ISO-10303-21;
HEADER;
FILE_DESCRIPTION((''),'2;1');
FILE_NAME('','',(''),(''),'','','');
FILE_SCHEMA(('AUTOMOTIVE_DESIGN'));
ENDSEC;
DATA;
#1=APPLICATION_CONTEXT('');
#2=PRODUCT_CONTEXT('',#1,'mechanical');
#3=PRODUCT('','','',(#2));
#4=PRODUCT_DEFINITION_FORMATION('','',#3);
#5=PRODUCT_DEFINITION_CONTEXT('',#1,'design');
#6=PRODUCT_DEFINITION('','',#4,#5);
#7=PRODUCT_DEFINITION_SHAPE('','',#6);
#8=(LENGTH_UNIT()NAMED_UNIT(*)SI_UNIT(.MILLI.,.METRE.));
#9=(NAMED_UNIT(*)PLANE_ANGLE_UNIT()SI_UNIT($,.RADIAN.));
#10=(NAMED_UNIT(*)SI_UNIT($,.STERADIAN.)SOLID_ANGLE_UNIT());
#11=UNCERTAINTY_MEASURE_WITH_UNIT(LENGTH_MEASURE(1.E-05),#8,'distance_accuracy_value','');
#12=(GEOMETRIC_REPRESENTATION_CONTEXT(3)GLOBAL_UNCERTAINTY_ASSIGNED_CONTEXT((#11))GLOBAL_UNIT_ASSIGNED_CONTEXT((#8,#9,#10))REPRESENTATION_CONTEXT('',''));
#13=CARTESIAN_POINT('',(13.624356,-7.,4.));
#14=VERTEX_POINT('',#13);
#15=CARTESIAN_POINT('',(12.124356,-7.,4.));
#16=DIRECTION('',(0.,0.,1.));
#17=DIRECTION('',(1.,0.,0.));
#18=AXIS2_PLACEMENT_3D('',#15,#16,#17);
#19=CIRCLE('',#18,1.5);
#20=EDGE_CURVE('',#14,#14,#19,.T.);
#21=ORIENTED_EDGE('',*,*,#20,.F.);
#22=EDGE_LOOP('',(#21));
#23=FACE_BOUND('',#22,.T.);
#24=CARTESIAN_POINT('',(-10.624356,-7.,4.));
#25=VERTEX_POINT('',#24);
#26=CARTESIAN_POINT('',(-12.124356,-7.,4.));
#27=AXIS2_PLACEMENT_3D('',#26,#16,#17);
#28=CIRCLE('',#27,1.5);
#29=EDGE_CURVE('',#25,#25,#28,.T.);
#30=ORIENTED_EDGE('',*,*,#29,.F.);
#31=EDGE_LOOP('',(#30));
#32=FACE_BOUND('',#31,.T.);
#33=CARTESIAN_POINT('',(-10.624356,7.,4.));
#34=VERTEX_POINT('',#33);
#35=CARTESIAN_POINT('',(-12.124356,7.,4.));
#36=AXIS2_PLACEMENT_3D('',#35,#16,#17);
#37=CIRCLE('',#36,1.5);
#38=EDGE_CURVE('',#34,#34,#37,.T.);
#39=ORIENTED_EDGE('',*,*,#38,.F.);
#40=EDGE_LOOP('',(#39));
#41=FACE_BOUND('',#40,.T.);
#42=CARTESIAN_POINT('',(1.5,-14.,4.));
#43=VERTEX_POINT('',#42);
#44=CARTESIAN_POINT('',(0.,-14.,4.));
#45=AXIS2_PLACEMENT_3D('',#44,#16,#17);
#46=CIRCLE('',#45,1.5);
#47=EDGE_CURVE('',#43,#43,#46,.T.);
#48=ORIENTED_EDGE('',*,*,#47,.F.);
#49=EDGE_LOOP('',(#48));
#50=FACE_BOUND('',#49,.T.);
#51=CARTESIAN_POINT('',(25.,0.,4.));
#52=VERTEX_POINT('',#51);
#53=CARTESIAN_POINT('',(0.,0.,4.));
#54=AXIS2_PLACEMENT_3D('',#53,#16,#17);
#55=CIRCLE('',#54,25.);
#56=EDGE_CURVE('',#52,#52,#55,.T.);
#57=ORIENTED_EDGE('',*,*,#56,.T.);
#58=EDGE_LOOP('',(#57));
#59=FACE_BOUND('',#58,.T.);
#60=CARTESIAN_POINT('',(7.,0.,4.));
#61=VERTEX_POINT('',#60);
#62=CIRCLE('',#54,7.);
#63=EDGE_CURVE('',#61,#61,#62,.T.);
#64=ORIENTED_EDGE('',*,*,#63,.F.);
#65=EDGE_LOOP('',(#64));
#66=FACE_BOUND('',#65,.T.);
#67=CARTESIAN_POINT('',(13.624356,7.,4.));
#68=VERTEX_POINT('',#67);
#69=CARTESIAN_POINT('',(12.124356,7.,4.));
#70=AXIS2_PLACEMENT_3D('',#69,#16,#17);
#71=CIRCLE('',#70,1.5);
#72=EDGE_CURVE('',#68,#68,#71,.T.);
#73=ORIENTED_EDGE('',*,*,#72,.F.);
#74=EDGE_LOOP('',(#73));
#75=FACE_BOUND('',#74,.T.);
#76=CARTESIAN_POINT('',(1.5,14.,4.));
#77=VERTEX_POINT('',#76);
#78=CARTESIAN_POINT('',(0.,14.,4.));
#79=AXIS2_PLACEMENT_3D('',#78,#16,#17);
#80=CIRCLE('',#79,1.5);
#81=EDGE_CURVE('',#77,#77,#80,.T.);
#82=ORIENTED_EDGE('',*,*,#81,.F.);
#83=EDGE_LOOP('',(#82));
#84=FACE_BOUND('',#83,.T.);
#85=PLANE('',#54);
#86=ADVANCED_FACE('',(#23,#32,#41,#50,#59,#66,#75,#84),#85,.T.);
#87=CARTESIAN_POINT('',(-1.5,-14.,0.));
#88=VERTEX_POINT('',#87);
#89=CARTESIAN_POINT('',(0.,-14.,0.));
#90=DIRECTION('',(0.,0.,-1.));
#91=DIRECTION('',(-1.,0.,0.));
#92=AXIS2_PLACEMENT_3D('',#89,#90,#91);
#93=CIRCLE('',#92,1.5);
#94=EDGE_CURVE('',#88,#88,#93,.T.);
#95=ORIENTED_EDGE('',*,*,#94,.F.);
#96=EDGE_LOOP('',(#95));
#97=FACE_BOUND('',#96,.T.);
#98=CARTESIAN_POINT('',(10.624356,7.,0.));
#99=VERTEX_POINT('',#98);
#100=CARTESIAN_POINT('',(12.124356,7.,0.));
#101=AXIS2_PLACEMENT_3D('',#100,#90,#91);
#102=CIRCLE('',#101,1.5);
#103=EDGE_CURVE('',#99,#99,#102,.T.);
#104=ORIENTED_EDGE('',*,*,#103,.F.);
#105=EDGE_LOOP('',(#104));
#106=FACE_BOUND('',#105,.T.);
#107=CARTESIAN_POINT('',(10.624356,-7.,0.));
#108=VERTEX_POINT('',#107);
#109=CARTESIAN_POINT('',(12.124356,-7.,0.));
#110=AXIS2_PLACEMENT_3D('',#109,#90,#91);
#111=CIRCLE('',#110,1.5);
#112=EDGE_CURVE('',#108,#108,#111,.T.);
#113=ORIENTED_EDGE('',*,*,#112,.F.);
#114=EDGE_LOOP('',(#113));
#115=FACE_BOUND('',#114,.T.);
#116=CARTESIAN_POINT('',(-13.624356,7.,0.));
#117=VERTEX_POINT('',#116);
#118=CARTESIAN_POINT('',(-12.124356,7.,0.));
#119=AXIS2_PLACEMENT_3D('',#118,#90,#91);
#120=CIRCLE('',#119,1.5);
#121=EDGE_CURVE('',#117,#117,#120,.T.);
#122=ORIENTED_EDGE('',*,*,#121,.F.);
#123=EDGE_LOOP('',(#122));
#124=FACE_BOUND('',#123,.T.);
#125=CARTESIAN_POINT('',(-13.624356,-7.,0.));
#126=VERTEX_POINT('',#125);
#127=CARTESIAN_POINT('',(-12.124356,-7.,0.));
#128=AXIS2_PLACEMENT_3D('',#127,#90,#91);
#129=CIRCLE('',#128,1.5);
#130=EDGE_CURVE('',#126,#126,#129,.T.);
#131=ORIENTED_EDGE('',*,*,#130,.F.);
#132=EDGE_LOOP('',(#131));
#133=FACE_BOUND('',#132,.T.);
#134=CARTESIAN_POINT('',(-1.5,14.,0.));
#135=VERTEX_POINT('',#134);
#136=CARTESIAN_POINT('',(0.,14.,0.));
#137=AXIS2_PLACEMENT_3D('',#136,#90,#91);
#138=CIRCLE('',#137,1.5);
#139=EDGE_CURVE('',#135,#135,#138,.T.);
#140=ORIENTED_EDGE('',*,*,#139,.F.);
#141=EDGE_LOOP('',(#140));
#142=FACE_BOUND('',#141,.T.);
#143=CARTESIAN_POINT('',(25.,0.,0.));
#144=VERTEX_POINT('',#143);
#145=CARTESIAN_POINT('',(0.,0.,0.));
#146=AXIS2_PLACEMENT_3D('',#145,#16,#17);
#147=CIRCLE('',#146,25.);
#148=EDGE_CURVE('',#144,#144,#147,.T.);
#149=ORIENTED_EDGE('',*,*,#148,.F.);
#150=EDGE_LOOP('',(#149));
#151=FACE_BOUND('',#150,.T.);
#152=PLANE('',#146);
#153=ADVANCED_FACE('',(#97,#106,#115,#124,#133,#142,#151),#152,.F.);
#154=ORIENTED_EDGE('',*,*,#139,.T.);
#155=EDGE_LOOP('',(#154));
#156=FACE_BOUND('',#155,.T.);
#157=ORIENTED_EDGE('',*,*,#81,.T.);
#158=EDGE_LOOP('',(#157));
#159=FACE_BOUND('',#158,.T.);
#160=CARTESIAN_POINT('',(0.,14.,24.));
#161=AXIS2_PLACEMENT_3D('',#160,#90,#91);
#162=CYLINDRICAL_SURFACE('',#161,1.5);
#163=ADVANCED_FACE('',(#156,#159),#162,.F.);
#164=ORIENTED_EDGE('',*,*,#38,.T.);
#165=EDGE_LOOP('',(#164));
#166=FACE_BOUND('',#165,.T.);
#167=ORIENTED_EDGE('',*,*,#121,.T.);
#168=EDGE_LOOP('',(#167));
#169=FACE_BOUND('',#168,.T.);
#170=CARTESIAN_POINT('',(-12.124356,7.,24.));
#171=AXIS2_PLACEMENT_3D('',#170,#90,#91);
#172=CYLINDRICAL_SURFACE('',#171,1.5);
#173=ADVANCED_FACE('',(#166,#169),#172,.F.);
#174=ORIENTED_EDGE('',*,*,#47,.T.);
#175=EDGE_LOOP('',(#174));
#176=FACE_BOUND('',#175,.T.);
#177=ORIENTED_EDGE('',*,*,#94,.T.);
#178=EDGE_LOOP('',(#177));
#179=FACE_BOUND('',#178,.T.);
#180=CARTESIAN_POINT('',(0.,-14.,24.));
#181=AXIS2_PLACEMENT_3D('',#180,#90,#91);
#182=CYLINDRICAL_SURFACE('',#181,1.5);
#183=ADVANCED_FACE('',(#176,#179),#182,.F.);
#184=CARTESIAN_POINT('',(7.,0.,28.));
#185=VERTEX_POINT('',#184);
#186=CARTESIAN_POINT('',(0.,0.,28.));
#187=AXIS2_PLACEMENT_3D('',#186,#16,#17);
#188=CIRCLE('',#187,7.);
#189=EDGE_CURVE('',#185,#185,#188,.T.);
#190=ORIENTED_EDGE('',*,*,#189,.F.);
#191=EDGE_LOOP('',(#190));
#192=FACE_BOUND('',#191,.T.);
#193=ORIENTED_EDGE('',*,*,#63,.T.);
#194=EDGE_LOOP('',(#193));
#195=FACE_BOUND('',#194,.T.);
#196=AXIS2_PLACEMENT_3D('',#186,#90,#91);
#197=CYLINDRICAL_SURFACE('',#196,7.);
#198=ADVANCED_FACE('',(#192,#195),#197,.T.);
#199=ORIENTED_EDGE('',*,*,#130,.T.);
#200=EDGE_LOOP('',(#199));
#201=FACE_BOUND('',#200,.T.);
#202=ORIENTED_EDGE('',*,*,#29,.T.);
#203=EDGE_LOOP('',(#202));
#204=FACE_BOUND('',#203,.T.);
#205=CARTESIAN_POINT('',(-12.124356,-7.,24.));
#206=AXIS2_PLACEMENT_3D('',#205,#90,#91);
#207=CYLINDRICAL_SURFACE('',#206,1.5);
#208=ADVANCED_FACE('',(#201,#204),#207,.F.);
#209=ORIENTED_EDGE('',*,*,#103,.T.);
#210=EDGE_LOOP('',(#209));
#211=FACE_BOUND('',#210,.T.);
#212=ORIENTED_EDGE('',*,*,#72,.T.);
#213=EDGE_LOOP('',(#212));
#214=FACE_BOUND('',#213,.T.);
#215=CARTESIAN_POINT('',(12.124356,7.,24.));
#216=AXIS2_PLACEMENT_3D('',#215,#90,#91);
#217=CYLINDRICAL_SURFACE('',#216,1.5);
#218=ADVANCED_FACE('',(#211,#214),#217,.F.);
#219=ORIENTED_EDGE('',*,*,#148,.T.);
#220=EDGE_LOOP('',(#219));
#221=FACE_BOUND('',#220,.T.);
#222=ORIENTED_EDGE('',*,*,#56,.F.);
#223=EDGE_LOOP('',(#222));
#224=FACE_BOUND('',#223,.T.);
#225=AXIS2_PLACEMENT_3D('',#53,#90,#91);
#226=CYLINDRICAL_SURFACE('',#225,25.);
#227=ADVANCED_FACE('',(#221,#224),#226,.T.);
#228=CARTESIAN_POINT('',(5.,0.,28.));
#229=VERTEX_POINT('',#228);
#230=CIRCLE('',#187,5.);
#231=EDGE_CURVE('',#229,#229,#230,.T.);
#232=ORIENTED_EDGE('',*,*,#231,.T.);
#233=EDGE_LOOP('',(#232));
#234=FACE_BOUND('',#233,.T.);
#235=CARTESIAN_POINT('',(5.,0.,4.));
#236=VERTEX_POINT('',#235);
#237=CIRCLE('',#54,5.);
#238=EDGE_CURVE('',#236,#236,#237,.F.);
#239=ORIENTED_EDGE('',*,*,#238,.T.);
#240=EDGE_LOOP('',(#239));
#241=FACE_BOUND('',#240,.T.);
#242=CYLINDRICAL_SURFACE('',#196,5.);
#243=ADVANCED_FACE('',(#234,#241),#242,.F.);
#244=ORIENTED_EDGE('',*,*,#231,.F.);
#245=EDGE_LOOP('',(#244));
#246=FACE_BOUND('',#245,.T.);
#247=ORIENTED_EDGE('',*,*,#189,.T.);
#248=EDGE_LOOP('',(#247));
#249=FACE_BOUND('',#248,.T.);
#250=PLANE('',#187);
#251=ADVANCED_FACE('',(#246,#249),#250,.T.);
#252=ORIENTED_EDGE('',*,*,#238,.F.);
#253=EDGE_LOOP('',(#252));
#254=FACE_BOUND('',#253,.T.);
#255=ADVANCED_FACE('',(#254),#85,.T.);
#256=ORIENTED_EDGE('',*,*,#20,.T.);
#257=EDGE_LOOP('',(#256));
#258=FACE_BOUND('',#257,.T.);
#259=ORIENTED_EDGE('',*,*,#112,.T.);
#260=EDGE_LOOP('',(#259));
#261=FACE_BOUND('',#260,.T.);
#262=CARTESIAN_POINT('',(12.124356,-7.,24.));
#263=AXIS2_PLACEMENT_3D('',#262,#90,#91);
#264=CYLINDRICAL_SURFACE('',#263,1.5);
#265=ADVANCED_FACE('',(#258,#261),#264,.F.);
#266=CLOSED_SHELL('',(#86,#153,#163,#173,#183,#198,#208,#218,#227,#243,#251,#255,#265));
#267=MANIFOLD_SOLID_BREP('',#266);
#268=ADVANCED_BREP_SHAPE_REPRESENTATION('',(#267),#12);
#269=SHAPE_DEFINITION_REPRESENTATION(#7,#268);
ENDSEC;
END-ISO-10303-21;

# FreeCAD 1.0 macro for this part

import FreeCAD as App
import Part
import Sketcher

doc = App.newDocument("Part")
params = doc.addObject("Spreadsheet::Sheet", "Params")
for row, (alias, value) in enumerate([
    ("sketch1_diameter", "50 mm"),
    ("pad1_length", "4 mm"),
    ("sketch2_diameter", "14 mm"),
    ("sketch2_diameter2", "10 mm"),
    ("pad2_length", "24 mm"),
    ("sketch3_diameter", "3 mm"),
    ("pocket1_length", "24 mm"),
], start=1):
    params.set(f"A{row}", alias)
    params.set(f"B{row}", "=" + value)
    params.setAlias(f"B{row}", alias)

body = doc.addObject("PartDesign::Body", "Body")

# Sketch on XY plane
sketch1 = body.newObject("Sketcher::SketchObject", "Sketch")
sketch1.AttachmentSupport = (doc.getObject("XY_Plane"), [""])
sketch1.MapMode = "FlatFace"
sketch1.addGeometry(Part.Circle(App.Vector(0, 0, 0), App.Vector(0, 0, 1), 25), False)
sketch1.addConstraint([
    Sketcher.Constraint("Coincident", 0, 3, -1, 1),
    Sketcher.Constraint("Diameter", 0, 50.0),
])
sketch1.setExpression("Constraints[1]", "Params.sketch1_diameter")
pad1 = body.newObject("PartDesign::Pad", "Pad")
pad1.Profile = sketch1
pad1.setExpression("Length", "Params.pad1_length")

# Sketch on XY plane
sketch2 = body.newObject("Sketcher::SketchObject", "Sketch001")
sketch2.AttachmentSupport = (doc.getObject("XY_Plane"), [""])
sketch2.MapMode = "FlatFace"
sketch2.AttachmentOffset = App.Placement(App.Vector(0, 0, 4), App.Rotation())
sketch2.addGeometry([
    Part.Circle(App.Vector(0, 0, 0), App.Vector(0, 0, 1), 7),
    Part.Circle(App.Vector(0, 0, 0), App.Vector(0, 0, 1), 5),
], False)
sketch2.addConstraint([
    Sketcher.Constraint("Coincident", 0, 3, -1, 1),
    Sketcher.Constraint("Coincident", 1, 3, -1, 1),
    Sketcher.Constraint("Diameter", 0, 14.0),
    Sketcher.Constraint("Diameter", 1, 10.0),
])
sketch2.setExpression("Constraints[2]", "Params.sketch2_diameter")
sketch2.setExpression("Constraints[3]", "Params.sketch2_diameter2")
pad2 = body.newObject("PartDesign::Pad", "Pad001")
pad2.Profile = sketch2
pad2.setExpression("Length", "Params.pad2_length")

# Sketch on XY plane
sketch3 = body.newObject("Sketcher::SketchObject", "Sketch002")
sketch3.AttachmentSupport = (doc.getObject("XY_Plane"), [""])
sketch3.MapMode = "FlatFace"
sketch3.addGeometry([
    Part.Circle(App.Vector(0, 14, 0), App.Vector(0, 0, 1), 1.5),  # 0
    Part.Circle(App.Vector(-12.1, 7, 0), App.Vector(0, 0, 1), 1.5),  # 1
    Part.Circle(App.Vector(-12.1, -7, 0), App.Vector(0, 0, 1), 1.5),  # 2
    Part.Circle(App.Vector(0, -14, 0), App.Vector(0, 0, 1), 1.5),  # 3
    Part.Circle(App.Vector(12.1, -7, 0), App.Vector(0, 0, 1), 1.5),  # 4
    Part.Circle(App.Vector(12.1, 7, 0), App.Vector(0, 0, 1), 1.5),  # 5
], False)
sketch3.addConstraint([
    Sketcher.Constraint("Equal", 0, 1),
    Sketcher.Constraint("Equal", 1, 2),
    Sketcher.Constraint("Equal", 2, 3),
    Sketcher.Constraint("Equal", 3, 4),
    Sketcher.Constraint("Equal", 4, 5),
    Sketcher.Constraint("Symmetric", 0, 3, 3, 3, -1, 1),
    Sketcher.Constraint("Symmetric", 1, 3, 4, 3, -1, 1),
    Sketcher.Constraint("Symmetric", 2, 3, 5, 3, -1, 1),
    Sketcher.Constraint("Symmetric", 2, 3, 4, 3, -2),
    Sketcher.Constraint("PointOnObject", 0, 3, -2),
    Sketcher.Constraint("Diameter", 0, 3.0),
    Sketcher.Constraint("DistanceY", -1, 1, 0, 3, 14.0),
    Sketcher.Constraint("DistanceY", -1, 1, 1, 3, 7.0),
    Sketcher.Constraint("DistanceX", 2, 3, 4, 3, 24.248711),
])
sketch3.setExpression("Constraints[10]", "Params.sketch3_diameter")
pocket1 = body.newObject("PartDesign::Pocket", "Pocket")
pocket1.Profile = sketch3
pocket1.setExpression("Length", "Params.pocket1_length")
pocket1.Reversed = True

doc.recompute()
